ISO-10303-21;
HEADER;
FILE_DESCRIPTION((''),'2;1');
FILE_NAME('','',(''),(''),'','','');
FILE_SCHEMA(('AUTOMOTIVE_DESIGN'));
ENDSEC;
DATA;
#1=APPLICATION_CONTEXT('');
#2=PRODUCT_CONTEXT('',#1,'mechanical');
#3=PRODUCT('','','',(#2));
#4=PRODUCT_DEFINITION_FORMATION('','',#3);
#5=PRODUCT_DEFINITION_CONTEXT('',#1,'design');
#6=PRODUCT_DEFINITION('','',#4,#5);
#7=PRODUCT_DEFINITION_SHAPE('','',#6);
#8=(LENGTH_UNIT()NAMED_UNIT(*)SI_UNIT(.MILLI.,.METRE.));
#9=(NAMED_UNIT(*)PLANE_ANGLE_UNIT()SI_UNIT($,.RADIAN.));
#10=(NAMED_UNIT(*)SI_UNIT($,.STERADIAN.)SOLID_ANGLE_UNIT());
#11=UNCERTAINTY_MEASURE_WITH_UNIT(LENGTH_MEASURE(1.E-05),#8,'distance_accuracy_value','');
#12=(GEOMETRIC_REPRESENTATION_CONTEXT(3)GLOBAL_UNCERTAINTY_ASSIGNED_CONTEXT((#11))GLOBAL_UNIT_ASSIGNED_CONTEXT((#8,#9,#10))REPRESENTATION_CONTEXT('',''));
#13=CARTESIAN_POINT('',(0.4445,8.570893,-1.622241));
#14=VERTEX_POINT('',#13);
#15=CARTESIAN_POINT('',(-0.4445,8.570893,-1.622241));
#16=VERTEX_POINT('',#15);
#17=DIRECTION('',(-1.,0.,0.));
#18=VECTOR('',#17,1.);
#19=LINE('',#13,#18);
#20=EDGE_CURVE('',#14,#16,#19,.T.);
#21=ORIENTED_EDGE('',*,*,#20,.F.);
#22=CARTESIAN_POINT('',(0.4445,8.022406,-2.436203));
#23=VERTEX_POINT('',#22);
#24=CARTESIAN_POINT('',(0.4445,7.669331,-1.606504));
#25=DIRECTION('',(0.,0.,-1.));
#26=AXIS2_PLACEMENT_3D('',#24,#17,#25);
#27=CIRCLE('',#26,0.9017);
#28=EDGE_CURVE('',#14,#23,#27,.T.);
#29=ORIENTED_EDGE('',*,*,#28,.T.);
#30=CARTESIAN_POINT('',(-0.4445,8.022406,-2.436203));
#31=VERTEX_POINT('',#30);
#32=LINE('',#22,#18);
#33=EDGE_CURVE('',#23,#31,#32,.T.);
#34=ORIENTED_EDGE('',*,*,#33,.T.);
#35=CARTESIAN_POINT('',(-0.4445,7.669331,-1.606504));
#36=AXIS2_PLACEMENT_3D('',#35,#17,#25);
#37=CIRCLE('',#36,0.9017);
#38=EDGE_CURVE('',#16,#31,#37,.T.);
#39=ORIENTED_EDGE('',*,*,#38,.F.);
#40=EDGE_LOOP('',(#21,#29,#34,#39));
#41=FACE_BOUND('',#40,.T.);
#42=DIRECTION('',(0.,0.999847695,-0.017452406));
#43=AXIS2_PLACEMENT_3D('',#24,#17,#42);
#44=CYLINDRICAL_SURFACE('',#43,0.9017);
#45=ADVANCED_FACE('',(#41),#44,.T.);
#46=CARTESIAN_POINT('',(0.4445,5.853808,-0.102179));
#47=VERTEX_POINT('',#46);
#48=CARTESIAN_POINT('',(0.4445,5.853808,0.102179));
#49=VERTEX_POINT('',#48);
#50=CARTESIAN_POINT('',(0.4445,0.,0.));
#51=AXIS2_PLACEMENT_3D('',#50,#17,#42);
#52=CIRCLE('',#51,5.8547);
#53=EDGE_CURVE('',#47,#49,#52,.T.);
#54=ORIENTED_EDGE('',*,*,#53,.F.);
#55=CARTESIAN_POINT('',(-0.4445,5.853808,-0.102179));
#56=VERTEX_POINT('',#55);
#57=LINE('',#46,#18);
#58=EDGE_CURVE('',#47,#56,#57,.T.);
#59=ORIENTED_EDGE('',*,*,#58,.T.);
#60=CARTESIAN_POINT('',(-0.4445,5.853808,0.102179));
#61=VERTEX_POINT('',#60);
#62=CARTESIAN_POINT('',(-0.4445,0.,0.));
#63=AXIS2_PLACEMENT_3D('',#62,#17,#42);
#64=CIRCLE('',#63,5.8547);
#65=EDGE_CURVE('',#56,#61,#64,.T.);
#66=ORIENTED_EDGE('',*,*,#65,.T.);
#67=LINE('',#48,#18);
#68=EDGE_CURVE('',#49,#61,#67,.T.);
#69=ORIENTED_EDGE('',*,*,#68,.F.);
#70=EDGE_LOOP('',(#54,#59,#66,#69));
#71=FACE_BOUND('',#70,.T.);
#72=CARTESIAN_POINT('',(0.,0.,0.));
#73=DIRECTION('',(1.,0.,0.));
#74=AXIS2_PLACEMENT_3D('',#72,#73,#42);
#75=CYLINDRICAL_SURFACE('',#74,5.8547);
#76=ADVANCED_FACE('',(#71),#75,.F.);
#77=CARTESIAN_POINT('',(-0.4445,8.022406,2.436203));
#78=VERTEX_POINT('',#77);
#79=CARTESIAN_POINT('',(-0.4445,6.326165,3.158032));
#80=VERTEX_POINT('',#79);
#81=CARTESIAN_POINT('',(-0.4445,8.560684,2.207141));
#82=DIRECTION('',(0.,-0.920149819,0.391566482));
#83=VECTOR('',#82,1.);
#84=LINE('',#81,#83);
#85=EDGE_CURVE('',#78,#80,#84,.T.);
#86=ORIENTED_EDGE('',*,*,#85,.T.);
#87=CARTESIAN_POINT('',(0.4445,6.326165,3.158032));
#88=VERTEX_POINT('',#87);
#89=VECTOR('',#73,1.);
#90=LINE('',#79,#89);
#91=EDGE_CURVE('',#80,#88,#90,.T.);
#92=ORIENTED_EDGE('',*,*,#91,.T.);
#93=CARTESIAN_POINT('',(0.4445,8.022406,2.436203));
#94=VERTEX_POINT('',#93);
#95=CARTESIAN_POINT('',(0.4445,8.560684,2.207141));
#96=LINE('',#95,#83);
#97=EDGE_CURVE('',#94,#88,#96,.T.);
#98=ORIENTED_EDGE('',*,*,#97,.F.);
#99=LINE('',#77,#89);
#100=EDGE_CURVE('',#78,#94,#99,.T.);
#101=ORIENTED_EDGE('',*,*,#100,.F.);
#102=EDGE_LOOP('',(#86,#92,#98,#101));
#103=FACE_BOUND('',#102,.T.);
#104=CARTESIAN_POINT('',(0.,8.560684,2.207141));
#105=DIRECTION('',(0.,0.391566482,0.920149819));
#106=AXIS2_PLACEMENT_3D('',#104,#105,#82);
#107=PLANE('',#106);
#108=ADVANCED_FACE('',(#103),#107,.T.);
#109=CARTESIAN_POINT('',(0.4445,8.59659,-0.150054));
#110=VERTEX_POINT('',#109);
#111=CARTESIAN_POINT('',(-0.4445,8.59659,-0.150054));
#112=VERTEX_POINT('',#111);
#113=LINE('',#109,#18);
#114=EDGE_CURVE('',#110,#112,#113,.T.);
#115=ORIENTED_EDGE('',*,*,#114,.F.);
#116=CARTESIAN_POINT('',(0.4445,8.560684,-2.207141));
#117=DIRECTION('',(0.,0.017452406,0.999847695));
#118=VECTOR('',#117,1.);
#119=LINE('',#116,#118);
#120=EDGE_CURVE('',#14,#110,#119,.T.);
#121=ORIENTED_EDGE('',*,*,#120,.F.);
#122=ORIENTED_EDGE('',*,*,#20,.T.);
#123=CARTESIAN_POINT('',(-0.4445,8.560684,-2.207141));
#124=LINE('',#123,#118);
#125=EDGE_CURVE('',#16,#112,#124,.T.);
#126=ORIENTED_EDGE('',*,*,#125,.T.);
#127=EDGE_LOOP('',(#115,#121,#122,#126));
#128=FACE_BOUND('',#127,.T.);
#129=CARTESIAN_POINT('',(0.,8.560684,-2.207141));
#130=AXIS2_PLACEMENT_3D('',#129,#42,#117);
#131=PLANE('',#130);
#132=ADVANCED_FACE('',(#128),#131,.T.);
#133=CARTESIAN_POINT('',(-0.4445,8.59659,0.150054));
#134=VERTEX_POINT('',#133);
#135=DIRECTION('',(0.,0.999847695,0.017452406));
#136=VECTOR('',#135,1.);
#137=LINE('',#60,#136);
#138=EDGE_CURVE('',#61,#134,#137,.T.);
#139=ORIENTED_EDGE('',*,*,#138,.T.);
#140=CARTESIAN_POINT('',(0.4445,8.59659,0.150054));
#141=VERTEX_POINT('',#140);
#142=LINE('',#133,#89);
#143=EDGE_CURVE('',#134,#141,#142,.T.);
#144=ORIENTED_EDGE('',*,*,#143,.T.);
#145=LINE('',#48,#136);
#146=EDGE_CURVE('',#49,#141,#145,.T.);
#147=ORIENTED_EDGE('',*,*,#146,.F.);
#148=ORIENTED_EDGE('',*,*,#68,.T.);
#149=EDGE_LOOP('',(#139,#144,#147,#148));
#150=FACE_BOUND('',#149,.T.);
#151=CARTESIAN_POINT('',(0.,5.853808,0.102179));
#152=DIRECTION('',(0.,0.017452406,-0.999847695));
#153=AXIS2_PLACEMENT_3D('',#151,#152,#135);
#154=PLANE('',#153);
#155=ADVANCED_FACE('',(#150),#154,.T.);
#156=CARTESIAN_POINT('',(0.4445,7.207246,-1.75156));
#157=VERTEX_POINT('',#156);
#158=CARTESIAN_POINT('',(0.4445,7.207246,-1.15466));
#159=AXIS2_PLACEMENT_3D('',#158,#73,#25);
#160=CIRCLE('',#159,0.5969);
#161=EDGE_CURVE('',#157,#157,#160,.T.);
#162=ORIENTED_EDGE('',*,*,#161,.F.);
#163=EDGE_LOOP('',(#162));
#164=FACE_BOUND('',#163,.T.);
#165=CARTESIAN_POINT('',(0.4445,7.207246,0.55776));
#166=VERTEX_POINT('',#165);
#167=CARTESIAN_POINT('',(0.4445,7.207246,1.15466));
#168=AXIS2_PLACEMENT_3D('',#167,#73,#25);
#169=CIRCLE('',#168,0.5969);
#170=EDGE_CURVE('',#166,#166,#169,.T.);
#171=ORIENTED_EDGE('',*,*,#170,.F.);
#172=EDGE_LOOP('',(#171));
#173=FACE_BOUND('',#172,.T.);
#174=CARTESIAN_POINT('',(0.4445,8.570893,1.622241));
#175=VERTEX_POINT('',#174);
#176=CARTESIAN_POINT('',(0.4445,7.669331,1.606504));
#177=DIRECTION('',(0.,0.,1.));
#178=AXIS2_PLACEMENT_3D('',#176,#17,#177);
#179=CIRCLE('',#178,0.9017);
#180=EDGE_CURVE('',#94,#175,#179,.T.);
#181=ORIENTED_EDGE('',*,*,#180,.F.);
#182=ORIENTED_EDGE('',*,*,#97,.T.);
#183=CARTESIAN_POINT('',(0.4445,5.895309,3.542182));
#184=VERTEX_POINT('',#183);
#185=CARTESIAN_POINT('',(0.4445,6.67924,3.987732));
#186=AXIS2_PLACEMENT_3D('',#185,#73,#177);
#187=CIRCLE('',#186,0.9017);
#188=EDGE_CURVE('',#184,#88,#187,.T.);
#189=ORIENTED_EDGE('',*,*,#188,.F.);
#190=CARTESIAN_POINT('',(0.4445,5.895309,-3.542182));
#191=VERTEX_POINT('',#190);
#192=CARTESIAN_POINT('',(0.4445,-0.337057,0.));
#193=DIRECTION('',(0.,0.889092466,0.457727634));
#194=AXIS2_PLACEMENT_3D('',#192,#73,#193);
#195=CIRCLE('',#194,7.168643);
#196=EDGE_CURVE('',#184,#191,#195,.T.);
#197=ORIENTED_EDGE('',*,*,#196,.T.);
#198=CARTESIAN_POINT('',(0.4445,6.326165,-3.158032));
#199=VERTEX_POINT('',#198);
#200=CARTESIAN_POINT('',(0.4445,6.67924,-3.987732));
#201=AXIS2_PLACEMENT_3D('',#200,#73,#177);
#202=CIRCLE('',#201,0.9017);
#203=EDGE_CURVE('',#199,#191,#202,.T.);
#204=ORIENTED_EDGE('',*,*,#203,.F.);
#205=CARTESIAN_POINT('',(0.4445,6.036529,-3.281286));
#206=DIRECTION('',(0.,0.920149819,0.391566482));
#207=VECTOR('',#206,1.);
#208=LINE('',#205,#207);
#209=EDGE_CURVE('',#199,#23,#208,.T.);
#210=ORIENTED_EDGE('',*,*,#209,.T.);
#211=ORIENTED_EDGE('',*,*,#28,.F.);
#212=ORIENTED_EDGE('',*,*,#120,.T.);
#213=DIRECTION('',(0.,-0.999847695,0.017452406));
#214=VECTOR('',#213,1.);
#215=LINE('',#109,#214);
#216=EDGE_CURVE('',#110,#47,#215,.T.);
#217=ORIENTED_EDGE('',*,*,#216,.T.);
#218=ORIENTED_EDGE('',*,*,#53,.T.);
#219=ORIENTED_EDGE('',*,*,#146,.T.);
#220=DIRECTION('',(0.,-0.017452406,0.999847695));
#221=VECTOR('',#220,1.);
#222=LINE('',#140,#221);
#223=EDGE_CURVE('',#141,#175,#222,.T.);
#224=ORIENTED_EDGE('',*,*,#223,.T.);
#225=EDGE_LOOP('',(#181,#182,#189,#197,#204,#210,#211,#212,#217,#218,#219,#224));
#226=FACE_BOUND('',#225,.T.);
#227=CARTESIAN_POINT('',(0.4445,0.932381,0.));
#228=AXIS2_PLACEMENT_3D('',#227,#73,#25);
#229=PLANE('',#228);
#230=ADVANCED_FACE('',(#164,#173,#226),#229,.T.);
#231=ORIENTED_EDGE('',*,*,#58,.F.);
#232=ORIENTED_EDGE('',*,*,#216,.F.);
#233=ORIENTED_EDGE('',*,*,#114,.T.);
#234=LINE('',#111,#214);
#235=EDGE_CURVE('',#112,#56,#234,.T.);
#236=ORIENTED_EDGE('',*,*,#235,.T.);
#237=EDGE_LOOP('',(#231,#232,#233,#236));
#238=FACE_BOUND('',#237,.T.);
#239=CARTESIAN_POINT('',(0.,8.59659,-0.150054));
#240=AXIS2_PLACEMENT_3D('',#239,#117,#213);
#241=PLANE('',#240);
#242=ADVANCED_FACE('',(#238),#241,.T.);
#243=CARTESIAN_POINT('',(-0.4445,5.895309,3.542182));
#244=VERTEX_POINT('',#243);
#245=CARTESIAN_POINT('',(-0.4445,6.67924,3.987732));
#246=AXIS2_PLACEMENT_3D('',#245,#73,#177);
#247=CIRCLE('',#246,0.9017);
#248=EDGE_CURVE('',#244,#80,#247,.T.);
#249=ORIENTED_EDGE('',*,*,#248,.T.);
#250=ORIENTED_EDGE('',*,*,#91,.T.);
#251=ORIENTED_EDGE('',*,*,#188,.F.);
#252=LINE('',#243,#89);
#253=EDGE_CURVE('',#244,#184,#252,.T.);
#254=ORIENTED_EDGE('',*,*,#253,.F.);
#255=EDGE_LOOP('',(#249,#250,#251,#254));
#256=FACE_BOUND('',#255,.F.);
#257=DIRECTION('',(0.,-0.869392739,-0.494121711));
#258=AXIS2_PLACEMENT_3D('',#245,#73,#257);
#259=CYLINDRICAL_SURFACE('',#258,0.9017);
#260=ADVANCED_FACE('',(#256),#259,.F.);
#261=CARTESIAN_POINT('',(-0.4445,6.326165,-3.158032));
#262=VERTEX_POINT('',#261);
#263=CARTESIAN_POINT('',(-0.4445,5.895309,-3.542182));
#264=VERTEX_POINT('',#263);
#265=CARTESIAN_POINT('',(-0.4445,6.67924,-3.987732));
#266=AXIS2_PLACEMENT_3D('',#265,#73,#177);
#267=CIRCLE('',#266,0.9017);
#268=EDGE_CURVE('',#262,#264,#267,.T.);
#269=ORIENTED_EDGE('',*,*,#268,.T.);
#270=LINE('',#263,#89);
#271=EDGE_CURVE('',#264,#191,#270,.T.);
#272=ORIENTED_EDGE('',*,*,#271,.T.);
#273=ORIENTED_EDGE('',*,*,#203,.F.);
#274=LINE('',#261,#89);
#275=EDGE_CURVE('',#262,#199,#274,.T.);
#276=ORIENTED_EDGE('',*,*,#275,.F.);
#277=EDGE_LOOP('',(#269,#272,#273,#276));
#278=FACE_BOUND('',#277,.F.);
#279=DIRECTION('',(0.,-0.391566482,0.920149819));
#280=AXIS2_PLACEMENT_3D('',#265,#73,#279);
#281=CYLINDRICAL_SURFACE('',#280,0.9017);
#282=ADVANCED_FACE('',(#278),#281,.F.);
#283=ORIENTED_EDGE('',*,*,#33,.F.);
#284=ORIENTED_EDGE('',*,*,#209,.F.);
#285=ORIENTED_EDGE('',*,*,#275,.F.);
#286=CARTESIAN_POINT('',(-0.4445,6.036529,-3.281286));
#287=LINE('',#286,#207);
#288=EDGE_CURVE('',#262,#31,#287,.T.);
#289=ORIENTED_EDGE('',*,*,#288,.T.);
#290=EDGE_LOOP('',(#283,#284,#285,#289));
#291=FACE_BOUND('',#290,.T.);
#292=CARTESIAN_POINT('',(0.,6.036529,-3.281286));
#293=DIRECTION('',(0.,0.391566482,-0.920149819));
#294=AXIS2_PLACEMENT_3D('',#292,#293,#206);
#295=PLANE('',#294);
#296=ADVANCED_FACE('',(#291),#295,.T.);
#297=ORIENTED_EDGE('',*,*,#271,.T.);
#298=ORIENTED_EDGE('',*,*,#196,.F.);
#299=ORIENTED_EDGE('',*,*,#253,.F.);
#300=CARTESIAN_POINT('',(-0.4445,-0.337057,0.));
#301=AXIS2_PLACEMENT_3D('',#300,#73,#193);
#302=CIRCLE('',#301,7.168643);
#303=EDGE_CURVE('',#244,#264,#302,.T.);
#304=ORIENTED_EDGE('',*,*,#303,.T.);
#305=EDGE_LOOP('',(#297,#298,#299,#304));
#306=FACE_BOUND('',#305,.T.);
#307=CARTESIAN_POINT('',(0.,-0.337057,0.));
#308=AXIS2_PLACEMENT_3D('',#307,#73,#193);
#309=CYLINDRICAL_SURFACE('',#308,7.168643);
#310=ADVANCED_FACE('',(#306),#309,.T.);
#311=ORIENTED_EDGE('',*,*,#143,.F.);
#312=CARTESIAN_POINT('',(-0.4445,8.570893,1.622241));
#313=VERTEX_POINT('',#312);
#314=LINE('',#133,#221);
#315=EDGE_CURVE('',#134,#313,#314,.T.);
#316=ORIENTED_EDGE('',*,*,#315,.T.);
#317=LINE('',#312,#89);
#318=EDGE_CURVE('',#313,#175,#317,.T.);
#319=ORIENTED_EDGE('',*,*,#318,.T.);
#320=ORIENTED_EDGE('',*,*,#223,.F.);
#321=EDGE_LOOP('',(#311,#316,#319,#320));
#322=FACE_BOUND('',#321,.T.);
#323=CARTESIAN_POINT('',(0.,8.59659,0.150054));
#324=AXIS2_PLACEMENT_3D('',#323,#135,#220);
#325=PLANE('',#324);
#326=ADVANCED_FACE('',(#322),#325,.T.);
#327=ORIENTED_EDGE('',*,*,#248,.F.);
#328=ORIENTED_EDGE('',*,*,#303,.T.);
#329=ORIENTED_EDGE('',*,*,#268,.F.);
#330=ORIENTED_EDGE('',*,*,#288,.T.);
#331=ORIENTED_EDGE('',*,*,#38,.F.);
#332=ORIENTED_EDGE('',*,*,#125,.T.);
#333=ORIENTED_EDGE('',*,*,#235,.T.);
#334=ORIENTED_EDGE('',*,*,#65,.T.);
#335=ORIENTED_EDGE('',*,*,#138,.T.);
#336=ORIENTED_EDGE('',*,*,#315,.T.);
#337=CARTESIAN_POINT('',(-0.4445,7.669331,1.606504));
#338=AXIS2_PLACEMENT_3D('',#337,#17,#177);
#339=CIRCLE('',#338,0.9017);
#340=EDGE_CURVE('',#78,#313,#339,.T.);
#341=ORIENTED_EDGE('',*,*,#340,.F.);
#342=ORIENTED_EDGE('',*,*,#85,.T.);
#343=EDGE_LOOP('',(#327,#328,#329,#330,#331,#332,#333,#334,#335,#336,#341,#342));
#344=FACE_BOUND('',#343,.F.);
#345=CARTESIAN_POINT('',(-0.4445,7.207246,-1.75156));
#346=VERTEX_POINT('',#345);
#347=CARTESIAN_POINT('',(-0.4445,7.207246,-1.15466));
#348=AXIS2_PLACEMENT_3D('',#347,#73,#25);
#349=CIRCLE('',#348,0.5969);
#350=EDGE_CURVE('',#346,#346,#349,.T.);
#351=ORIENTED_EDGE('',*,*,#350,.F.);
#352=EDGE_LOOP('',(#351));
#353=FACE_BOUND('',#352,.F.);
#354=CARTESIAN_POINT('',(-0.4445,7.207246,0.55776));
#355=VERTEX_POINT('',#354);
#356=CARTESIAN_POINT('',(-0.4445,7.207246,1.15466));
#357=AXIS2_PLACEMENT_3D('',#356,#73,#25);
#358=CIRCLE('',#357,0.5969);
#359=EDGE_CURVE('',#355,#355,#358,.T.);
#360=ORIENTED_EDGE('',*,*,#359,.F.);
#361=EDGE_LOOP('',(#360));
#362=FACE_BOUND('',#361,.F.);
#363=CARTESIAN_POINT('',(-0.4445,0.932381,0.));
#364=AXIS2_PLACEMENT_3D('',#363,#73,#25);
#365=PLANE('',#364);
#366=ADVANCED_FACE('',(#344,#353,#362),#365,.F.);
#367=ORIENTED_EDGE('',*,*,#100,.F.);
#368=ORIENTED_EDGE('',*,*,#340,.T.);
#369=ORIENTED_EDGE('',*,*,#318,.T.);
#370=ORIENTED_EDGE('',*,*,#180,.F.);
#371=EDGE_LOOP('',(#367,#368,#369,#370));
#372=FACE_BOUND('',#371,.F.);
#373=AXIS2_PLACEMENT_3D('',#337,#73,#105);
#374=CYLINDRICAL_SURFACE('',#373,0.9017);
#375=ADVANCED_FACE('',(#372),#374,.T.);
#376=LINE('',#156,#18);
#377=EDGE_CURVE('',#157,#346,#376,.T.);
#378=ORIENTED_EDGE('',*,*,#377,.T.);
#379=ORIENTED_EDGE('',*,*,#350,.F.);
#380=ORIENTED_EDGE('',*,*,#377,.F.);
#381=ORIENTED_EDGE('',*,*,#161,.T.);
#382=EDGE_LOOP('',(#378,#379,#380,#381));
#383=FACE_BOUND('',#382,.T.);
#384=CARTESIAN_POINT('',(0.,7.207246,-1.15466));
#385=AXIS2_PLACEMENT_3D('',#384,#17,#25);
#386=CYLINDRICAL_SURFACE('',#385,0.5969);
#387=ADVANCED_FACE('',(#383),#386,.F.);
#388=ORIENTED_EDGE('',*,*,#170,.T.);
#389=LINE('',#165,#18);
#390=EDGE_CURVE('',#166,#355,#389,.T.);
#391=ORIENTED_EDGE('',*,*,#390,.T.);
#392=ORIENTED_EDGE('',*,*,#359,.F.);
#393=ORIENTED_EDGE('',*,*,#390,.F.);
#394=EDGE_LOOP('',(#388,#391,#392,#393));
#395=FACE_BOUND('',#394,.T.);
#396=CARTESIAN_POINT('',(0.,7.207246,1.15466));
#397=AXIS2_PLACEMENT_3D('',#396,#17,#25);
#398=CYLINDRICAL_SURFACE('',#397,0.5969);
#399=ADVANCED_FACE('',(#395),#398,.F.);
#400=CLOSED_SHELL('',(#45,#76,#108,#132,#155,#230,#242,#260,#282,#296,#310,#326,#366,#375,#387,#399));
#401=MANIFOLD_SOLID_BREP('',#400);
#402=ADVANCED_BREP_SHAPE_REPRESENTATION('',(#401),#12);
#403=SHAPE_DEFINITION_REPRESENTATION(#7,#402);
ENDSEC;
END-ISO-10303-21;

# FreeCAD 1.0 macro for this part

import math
import FreeCAD as App
import Part
import Sketcher
from FreeCAD import Vector
Q = App.Units.Quantity


def edges_at(feature, points):
    """Names of the edges that pass closest to the given points."""
    edges = feature.Shape.Edges
    near = lambda p: min(range(len(edges)), key=lambda i: edges[i].distToShape(Part.Vertex(*p))[0])
    return sorted({f"Edge{near(p) + 1}" for p in points})

doc = App.newDocument("Part")
body = doc.addObject("PartDesign::Body", "Body")

sketch1 = body.newObject("Sketcher::SketchObject", "Sketch")
sketch1.AttachmentSupport = (doc.getObject("YZ_Plane"), [""])
sketch1.MapMode = "FlatFace"
sketch1.addGeometry(Part.LineSegment(Vector(5.85, 0.1, 0), Vector(8.6, 0.15, 0)), False)
sketch1.addGeometry(Part.LineSegment(Vector(8.6, 0.15, 0), Vector(8.56, 2.21, 0)), False)
sketch1.addGeometry(Part.LineSegment(Vector(8.56, 2.21, 0), Vector(6.04, 3.28, 0)), False)
sketch1.addGeometry(Part.ArcOfCircle(Part.Circle(Vector(-0.34, 0, 0), Vector(0, 0, 1), 7.17), math.radians(27), math.radians(333)), False)
sketch1.addGeometry(Part.LineSegment(Vector(6.04, -3.28, 0), Vector(8.56, -2.21, 0)), False)
sketch1.addGeometry(Part.LineSegment(Vector(8.56, -2.21, 0), Vector(8.6, -0.15, 0)), False)
sketch1.addGeometry(Part.LineSegment(Vector(8.6, -0.15, 0), Vector(5.85, -0.1, 0)), False)
sketch1.addGeometry(Part.ArcOfCircle(Part.Circle(Vector(0, 0, 0), Vector(0, 0, 1), 5.85), math.radians(1), math.radians(359)), False)
sketch1.addGeometry(Part.Circle(Vector(7.21, 1.15, 0), Vector(0, 0, 1), 0.6), False)
sketch1.addGeometry(Part.Circle(Vector(7.21, -1.15, 0), Vector(0, 0, 1), 0.6), False)
sketch1.addConstraint(Sketcher.Constraint("Coincident", 0, 2, 1, 1))
sketch1.addConstraint(Sketcher.Constraint("Coincident", 1, 2, 2, 1))
sketch1.addConstraint(Sketcher.Constraint("Coincident", 2, 2, 3, 1))
sketch1.addConstraint(Sketcher.Constraint("Coincident", 3, 2, 4, 1))
sketch1.addConstraint(Sketcher.Constraint("Coincident", 4, 2, 5, 1))
sketch1.addConstraint(Sketcher.Constraint("Coincident", 5, 2, 6, 1))
sketch1.addConstraint(Sketcher.Constraint("Coincident", 6, 2, 7, 2))
sketch1.addConstraint(Sketcher.Constraint("Coincident", 7, 1, 0, 1))
sketch1.addConstraint(Sketcher.Constraint("Coincident", 7, 3, -1, 1))
sketch1.addConstraint(Sketcher.Constraint("Equal", 8, 9))
sketch1.addConstraint(Sketcher.Constraint("Symmetric", 8, 3, 9, 3, -1))
sketch1.addConstraint(Sketcher.Constraint("Symmetric", 2, 2, 3, 2, -1))
sketch1.addConstraint(Sketcher.Constraint("Symmetric", 1, 2, 4, 2, -1))
sketch1.addConstraint(Sketcher.Constraint("Symmetric", 0, 2, 5, 2, -1))
sketch1.addConstraint(Sketcher.Constraint("Perpendicular", 0, 1))
sketch1.addConstraint(Sketcher.Constraint("Perpendicular", 5, 6))
sketch1.addConstraint(Sketcher.Constraint("Equal", 0, 2))
sketch1.addConstraint(Sketcher.Constraint("Diameter", 8, Q("0.047 in")))
sketch1.addConstraint(Sketcher.Constraint("Angle", 0, Q("1 deg")))
sketch1.addConstraint(Sketcher.Constraint("Radius", 7, Q("0.2305 in")))
sketch1.addConstraint(Sketcher.Constraint("Distance", 0, Q("0.108 in")))
sketch1.addConstraint(Sketcher.Constraint("Distance", 1, Q("0.081 in")))
sketch1.addConstraint(Sketcher.Constraint("Radius", 3, Q("7.168643 mm")))
sketch1.addConstraint(Sketcher.Constraint("DistanceY", 9, 3, 1, 2, Q("3.3618 mm")))
sketch1.addConstraint(Sketcher.Constraint("DistanceY", -1, 1, 8, 3, Q("1.15466 mm")))
sketch1.addConstraint(Sketcher.Constraint("DistanceX", -1, 1, 2, 2, Q("6.036529 mm")))
sketch1.addConstraint(Sketcher.Constraint("DistanceX", -1, 1, 8, 3, Q("7.207246 mm")))
pad1 = body.newObject("PartDesign::Pad", "Pad")
pad1.Profile = sketch1
pad1.Length = Q("0.035 in")
pad1.Midplane = True
doc.recompute()

fillet = body.newObject("PartDesign::Fillet", "Fillet")
fillet.Base = (pad1, edges_at(pad1, [
    (0, 8.561, -2.207),
    (0, 6.037, -3.281),
    (0, 6.037, 3.281),
    (0, 8.561, 2.207),
]))
fillet.Radius = Q("0.0355 in")

doc.recompute()
